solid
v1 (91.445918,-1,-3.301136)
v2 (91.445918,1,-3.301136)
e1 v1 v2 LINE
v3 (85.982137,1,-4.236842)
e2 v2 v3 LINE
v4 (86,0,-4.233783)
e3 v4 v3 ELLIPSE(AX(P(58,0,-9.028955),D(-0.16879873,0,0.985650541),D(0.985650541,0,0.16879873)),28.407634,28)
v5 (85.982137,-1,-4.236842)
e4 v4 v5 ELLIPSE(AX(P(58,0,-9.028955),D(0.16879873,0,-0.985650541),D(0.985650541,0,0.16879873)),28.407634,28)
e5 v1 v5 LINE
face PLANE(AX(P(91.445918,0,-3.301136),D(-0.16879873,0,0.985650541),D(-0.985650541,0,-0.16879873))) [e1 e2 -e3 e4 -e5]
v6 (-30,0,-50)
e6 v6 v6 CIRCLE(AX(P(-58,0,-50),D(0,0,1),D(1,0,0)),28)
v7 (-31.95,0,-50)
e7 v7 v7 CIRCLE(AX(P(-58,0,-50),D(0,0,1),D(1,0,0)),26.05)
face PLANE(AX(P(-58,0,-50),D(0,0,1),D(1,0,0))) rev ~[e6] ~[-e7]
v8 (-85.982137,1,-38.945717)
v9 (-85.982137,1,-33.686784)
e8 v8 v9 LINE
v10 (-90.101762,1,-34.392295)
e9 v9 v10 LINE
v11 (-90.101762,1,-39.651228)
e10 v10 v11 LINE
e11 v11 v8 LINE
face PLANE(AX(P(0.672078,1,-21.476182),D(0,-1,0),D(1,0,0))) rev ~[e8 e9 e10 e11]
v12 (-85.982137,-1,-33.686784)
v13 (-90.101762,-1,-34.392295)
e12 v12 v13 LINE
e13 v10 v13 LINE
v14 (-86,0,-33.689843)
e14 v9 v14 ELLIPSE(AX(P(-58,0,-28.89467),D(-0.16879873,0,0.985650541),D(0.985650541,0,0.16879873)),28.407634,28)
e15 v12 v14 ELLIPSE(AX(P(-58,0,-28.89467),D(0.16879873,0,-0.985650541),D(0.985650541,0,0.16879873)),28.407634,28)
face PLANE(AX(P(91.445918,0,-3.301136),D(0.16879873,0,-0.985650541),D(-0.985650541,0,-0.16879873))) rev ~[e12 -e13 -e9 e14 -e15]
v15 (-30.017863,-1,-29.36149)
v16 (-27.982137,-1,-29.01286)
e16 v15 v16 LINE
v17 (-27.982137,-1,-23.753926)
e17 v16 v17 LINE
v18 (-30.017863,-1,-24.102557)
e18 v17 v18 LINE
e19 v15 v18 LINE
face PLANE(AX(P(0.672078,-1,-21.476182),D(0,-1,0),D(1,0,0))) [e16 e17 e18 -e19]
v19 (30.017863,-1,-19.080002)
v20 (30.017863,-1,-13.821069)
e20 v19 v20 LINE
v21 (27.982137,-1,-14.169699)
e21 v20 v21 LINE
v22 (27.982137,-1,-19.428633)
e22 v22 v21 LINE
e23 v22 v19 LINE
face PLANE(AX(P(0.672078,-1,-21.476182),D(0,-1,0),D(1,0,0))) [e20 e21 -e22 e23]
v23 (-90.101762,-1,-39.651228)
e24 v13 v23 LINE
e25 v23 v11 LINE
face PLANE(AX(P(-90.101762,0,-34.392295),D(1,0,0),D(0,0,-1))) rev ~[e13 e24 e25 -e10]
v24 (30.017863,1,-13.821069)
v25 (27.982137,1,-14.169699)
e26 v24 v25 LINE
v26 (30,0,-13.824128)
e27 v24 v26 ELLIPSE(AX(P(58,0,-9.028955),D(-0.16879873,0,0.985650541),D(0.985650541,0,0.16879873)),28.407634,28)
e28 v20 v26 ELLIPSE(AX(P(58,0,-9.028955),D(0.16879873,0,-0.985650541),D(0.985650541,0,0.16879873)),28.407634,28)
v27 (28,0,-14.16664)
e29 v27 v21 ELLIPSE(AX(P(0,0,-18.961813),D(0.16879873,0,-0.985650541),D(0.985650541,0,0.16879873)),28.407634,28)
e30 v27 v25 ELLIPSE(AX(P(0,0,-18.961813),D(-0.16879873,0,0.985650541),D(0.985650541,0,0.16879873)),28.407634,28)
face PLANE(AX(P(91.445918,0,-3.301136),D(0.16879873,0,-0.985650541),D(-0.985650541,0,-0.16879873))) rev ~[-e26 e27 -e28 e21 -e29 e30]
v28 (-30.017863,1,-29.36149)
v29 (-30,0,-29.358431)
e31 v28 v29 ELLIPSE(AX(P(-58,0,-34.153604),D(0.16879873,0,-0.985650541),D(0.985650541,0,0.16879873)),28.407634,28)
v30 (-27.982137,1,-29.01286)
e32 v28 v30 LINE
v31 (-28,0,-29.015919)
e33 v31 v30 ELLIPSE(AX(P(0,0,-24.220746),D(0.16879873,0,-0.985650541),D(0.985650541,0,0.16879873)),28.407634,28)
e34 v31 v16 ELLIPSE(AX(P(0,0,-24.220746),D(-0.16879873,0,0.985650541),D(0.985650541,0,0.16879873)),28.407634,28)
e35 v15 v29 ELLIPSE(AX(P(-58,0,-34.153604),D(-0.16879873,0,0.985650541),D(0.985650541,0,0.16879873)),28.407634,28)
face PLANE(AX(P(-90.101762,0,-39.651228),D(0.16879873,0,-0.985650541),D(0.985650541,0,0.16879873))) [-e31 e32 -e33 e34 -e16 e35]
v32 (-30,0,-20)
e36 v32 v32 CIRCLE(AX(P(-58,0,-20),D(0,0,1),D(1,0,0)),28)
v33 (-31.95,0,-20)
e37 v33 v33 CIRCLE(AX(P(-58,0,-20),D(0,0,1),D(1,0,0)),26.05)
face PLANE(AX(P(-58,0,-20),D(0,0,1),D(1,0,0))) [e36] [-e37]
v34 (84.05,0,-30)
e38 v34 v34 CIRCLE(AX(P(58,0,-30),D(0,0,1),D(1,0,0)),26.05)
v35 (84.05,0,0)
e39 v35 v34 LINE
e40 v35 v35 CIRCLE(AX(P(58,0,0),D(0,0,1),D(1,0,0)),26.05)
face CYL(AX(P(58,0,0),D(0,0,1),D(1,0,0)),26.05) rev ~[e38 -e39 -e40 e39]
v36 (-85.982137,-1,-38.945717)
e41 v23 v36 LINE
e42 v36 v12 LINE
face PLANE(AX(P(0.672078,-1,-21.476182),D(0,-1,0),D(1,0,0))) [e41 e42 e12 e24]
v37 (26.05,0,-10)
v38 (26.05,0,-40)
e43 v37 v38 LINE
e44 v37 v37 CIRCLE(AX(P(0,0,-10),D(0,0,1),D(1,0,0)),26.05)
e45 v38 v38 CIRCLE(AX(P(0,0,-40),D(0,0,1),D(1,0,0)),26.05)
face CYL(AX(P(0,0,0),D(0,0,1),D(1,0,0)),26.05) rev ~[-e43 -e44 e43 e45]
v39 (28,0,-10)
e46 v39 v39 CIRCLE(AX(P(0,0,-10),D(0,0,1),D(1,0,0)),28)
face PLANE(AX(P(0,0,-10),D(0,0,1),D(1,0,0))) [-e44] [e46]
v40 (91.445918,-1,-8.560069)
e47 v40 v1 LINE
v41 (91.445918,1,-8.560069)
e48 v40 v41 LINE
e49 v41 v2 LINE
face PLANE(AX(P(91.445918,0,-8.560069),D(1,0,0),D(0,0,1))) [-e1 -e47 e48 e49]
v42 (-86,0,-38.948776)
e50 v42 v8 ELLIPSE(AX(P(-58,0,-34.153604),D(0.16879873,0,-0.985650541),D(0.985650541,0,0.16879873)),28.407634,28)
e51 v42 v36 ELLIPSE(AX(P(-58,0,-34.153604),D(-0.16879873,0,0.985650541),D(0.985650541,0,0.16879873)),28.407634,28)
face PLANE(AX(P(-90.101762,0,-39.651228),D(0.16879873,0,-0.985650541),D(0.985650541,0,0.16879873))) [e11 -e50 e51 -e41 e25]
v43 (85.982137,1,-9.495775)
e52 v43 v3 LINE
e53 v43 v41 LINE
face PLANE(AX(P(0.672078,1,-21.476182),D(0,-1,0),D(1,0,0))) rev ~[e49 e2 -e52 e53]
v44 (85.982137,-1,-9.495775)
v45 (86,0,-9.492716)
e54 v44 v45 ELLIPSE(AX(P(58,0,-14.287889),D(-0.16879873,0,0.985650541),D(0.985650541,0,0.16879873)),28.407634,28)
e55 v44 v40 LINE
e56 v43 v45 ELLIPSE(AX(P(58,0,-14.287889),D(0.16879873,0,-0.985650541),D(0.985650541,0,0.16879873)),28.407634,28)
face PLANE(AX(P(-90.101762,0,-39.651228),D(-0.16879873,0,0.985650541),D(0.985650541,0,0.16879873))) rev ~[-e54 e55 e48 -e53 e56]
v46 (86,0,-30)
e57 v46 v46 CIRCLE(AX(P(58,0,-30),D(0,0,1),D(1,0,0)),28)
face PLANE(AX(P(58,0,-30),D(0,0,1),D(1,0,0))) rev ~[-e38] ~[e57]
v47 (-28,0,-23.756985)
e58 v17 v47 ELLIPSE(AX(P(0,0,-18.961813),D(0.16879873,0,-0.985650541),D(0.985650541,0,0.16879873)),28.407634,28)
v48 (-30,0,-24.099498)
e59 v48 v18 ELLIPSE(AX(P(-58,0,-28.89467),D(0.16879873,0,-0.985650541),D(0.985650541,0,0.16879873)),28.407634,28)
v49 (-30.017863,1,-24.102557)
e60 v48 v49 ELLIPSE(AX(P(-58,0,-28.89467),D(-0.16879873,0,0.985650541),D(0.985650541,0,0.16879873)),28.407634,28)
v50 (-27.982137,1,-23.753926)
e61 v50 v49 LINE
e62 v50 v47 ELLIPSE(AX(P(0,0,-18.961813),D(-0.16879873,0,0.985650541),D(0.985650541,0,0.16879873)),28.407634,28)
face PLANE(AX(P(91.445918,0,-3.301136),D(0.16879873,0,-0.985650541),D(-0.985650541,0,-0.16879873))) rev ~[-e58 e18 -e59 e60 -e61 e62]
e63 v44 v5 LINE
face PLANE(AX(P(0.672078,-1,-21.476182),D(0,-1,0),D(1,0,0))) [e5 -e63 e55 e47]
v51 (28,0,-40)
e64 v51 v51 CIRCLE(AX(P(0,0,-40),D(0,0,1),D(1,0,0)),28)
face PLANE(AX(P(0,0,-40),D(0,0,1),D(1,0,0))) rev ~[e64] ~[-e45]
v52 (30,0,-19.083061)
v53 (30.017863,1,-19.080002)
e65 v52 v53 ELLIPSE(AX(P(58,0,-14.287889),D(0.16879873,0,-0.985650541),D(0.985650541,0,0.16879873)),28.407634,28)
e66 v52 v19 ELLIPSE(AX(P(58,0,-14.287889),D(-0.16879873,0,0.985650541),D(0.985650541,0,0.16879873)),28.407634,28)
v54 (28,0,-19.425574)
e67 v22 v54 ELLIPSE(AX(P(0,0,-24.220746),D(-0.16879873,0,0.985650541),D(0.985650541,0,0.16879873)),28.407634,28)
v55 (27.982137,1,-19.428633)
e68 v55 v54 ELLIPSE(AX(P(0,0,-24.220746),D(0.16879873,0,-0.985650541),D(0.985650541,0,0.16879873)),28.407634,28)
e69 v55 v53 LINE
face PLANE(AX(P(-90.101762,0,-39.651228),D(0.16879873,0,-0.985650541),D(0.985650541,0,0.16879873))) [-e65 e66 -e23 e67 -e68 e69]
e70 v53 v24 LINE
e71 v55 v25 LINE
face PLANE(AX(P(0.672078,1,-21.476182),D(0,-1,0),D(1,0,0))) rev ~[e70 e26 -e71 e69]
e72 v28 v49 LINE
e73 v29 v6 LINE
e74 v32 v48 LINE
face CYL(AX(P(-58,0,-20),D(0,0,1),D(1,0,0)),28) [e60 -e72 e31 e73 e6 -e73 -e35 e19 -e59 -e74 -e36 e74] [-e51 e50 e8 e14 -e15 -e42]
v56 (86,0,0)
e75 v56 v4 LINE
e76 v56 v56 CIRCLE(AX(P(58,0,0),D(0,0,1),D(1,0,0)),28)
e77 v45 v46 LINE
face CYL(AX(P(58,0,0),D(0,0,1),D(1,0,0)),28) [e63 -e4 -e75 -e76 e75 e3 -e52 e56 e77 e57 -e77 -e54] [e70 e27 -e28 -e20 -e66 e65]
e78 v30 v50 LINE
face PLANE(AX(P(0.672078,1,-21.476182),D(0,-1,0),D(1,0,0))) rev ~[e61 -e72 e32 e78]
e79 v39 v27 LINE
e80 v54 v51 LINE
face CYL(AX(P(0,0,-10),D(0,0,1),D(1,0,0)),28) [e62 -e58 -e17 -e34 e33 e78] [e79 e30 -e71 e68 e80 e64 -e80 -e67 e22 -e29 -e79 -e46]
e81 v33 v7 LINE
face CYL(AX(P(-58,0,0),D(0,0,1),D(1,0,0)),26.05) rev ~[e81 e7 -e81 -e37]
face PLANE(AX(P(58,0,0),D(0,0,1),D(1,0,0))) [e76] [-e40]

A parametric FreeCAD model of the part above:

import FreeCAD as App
import Part
import Sketcher
Q = App.Units.Quantity

doc = App.newDocument("Part")
params = doc.addObject("Spreadsheet::Sheet", "Params")
for row, (alias, value) in enumerate([
    ("sketch1_diameter", "56 mm"),
    ("pad1_length", "30 mm"),
    ("sketch2_diameter", "56 mm"),
    ("pad2_length", "30 mm"),
    ("sketch3_diameter", "56 mm"),
    ("pad3_length", "30 mm"),
    ("pad4_length", "1 mm"),
    ("pad4_length2", "1 mm"),
    ("sketch5_diameter", "52.1 mm"),
    ("pocket1_length", "50 mm"),
    ("sketch6_diameter", "52.1 mm"),
    ("pocket2_length", "150.7 mm"),
    ("sketch7_diameter", "52.1 mm"),
    ("pocket3_length", "50 mm"),
], start=1):
    params.set(f"A{row}", alias)
    params.set(f"B{row}", "=" + value)
    params.setAlias(f"B{row}", alias)

body = doc.addObject("PartDesign::Body", "Body")

# Sketch on XY plane
sketch1 = body.newObject("Sketcher::SketchObject", "Sketch")
sketch1.AttachmentSupport = (doc.getObject("XY_Plane"), [""])
sketch1.MapMode = "FlatFace"
sketch1.addGeometry(Part.Circle(App.Vector(58, 0, 0), App.Vector(0, 0, 1), 28), False)
sketch1.addConstraint([
    Sketcher.Constraint("PointOnObject", 0, 3, -1),
    Sketcher.Constraint("Diameter", 0, Q("56 mm")),
    Sketcher.Constraint("DistanceX", -1, 1, 0, 3, Q("58 mm")),
])
sketch1.setExpression("Constraints[1]", "Params.sketch1_diameter")
pad1 = body.newObject("PartDesign::Pad", "Pad")
pad1.Profile = sketch1
pad1.setExpression("Length", "Params.pad1_length")
pad1.Reversed = True
body2 = doc.addObject("PartDesign::Body", "Body001")

# Sketch on XY plane
sketch2 = body2.newObject("Sketcher::SketchObject", "Sketch001")
sketch2.AttachmentSupport = (doc.getObject("XY_Plane001"), [""])
sketch2.MapMode = "FlatFace"
sketch2.AttachmentOffset = App.Placement(App.Vector(0, 0, -10), App.Rotation())
sketch2.addGeometry(Part.Circle(App.Vector(0, 0, 0), App.Vector(0, 0, 1), 28), False)
sketch2.addConstraint([
    Sketcher.Constraint("Coincident", 0, 3, -1, 1),
    Sketcher.Constraint("Diameter", 0, Q("56 mm")),
])
sketch2.setExpression("Constraints[1]", "Params.sketch2_diameter")
pad2 = body2.newObject("PartDesign::Pad", "Pad001")
pad2.Profile = sketch2
pad2.setExpression("Length", "Params.pad2_length")
pad2.Reversed = True
body3 = doc.addObject("PartDesign::Body", "Body002")

# Sketch on XY plane
sketch3 = body3.newObject("Sketcher::SketchObject", "Sketch002")
sketch3.AttachmentSupport = (doc.getObject("XY_Plane002"), [""])
sketch3.MapMode = "FlatFace"
sketch3.AttachmentOffset = App.Placement(App.Vector(0, 0, -20), App.Rotation())
sketch3.addGeometry(Part.Circle(App.Vector(-58, 0, 0), App.Vector(0, 0, 1), 28), False)
sketch3.addConstraint([
    Sketcher.Constraint("PointOnObject", 0, 3, -1),
    Sketcher.Constraint("Diameter", 0, Q("56 mm")),
    Sketcher.Constraint("DistanceX", 0, 3, -1, 1, Q("58 mm")),
])
sketch3.setExpression("Constraints[1]", "Params.sketch3_diameter")
pad3 = body3.newObject("PartDesign::Pad", "Pad002")
pad3.Profile = sketch3
pad3.setExpression("Length", "Params.pad3_length")
pad3.Reversed = True
body.AllowCompound = True
doc.recompute()

boolean = body.newObject("PartDesign::Boolean", "Boolean")
boolean.Type = "Fuse"
boolean.addObjects([body2])
doc.recompute()

boolean2 = body.newObject("PartDesign::Boolean", "Boolean001")
boolean2.Type = "Fuse"
boolean2.addObjects([body3])

# Sketch on XZ plane
sketch4 = body.newObject("Sketcher::SketchObject", "Sketch003")
sketch4.AttachmentSupport = (doc.getObject("XZ_Plane"), [""])
sketch4.MapMode = "FlatFace"
sketch4.addGeometry([
    Part.LineSegment(App.Vector(91, -3, 0), App.Vector(-90, -34, 0)),
    Part.LineSegment(App.Vector(-90, -34, 0), App.Vector(-90, -40, 0)),
    Part.LineSegment(App.Vector(-90, -40, 0), App.Vector(91, -9, 0)),
    Part.LineSegment(App.Vector(91, -9, 0), App.Vector(91, -3, 0)),
], False)
sketch4.addConstraint([
    Sketcher.Constraint("Coincident", 0, 2, 1, 1),
    Sketcher.Constraint("Coincident", 1, 2, 2, 1),
    Sketcher.Constraint("Coincident", 2, 2, 3, 1),
    Sketcher.Constraint("Coincident", 3, 2, 0, 1),
    Sketcher.Constraint("Vertical", 1),
    Sketcher.Constraint("Vertical", 3),
    Sketcher.Constraint("Parallel", 0, 2),
    Sketcher.Constraint("DistanceY", 1, 2, 1, 1, Q("5.258933 mm")),
    Sketcher.Constraint("DistanceY", 1, 2, -1, 1, Q("39.651228 mm")),
    Sketcher.Constraint("DistanceX", -1, 1, 2, 2, Q("91.445918 mm")),
    Sketcher.Constraint("DistanceY", 2, 2, -1, 1, Q("8.560069 mm")),
    Sketcher.Constraint("DistanceX", 0, 2, 2, 2, Q("181.54768 mm")),
])
pad4 = body.newObject("PartDesign::Pad", "Pad003")
pad4.Profile = sketch4
pad4.Type = "TwoLengths"
pad4.setExpression("Length", "Params.pad4_length")
pad4.setExpression("Length2", "Params.pad4_length2")

# Sketch on XY plane
sketch5 = body.newObject("Sketcher::SketchObject", "Sketch004")
sketch5.AttachmentSupport = (doc.getObject("XY_Plane"), [""])
sketch5.MapMode = "FlatFace"
sketch5.addGeometry(Part.Circle(App.Vector(-58, 0, 0), App.Vector(0, 0, 1), 26), False)
sketch5.addConstraint([
    Sketcher.Constraint("PointOnObject", 0, 3, -1),
    Sketcher.Constraint("Diameter", 0, Q("52.1 mm")),
    Sketcher.Constraint("DistanceX", 0, 3, -1, 1, Q("58 mm")),
])
sketch5.setExpression("Constraints[1]", "Params.sketch5_diameter")
pocket1 = body.newObject("PartDesign::Pocket", "Pocket")
pocket1.Profile = sketch5
pocket1.setExpression("Length", "Params.pocket1_length")

# Sketch on XY plane
sketch6 = body.newObject("Sketcher::SketchObject", "Sketch005")
sketch6.AttachmentSupport = (doc.getObject("XY_Plane"), [""])
sketch6.MapMode = "FlatFace"
sketch6.addGeometry(Part.Circle(App.Vector(0, 0, 0), App.Vector(0, 0, 1), 26), False)
sketch6.addConstraint([
    Sketcher.Constraint("Coincident", 0, 3, -1, 1),
    Sketcher.Constraint("Diameter", 0, Q("52.1 mm")),
])
sketch6.setExpression("Constraints[1]", "Params.sketch6_diameter")
pocket2 = body.newObject("PartDesign::Pocket", "Pocket001")
pocket2.Profile = sketch6
pocket2.setExpression("Length", "Params.pocket2_length")

# Sketch on XY plane
sketch7 = body.newObject("Sketcher::SketchObject", "Sketch006")
sketch7.AttachmentSupport = (doc.getObject("XY_Plane"), [""])
sketch7.MapMode = "FlatFace"
sketch7.addGeometry(Part.Circle(App.Vector(58, 0, 0), App.Vector(0, 0, 1), 26), False)
sketch7.addConstraint([
    Sketcher.Constraint("PointOnObject", 0, 3, -1),
    Sketcher.Constraint("Diameter", 0, Q("52.1 mm")),
    Sketcher.Constraint("DistanceX", -1, 1, 0, 3, Q("58 mm")),
])
sketch7.setExpression("Constraints[1]", "Params.sketch7_diameter")
pocket3 = body.newObject("PartDesign::Pocket", "Pocket002")
pocket3.Profile = sketch7
pocket3.setExpression("Length", "Params.pocket3_length")

doc.recompute()
